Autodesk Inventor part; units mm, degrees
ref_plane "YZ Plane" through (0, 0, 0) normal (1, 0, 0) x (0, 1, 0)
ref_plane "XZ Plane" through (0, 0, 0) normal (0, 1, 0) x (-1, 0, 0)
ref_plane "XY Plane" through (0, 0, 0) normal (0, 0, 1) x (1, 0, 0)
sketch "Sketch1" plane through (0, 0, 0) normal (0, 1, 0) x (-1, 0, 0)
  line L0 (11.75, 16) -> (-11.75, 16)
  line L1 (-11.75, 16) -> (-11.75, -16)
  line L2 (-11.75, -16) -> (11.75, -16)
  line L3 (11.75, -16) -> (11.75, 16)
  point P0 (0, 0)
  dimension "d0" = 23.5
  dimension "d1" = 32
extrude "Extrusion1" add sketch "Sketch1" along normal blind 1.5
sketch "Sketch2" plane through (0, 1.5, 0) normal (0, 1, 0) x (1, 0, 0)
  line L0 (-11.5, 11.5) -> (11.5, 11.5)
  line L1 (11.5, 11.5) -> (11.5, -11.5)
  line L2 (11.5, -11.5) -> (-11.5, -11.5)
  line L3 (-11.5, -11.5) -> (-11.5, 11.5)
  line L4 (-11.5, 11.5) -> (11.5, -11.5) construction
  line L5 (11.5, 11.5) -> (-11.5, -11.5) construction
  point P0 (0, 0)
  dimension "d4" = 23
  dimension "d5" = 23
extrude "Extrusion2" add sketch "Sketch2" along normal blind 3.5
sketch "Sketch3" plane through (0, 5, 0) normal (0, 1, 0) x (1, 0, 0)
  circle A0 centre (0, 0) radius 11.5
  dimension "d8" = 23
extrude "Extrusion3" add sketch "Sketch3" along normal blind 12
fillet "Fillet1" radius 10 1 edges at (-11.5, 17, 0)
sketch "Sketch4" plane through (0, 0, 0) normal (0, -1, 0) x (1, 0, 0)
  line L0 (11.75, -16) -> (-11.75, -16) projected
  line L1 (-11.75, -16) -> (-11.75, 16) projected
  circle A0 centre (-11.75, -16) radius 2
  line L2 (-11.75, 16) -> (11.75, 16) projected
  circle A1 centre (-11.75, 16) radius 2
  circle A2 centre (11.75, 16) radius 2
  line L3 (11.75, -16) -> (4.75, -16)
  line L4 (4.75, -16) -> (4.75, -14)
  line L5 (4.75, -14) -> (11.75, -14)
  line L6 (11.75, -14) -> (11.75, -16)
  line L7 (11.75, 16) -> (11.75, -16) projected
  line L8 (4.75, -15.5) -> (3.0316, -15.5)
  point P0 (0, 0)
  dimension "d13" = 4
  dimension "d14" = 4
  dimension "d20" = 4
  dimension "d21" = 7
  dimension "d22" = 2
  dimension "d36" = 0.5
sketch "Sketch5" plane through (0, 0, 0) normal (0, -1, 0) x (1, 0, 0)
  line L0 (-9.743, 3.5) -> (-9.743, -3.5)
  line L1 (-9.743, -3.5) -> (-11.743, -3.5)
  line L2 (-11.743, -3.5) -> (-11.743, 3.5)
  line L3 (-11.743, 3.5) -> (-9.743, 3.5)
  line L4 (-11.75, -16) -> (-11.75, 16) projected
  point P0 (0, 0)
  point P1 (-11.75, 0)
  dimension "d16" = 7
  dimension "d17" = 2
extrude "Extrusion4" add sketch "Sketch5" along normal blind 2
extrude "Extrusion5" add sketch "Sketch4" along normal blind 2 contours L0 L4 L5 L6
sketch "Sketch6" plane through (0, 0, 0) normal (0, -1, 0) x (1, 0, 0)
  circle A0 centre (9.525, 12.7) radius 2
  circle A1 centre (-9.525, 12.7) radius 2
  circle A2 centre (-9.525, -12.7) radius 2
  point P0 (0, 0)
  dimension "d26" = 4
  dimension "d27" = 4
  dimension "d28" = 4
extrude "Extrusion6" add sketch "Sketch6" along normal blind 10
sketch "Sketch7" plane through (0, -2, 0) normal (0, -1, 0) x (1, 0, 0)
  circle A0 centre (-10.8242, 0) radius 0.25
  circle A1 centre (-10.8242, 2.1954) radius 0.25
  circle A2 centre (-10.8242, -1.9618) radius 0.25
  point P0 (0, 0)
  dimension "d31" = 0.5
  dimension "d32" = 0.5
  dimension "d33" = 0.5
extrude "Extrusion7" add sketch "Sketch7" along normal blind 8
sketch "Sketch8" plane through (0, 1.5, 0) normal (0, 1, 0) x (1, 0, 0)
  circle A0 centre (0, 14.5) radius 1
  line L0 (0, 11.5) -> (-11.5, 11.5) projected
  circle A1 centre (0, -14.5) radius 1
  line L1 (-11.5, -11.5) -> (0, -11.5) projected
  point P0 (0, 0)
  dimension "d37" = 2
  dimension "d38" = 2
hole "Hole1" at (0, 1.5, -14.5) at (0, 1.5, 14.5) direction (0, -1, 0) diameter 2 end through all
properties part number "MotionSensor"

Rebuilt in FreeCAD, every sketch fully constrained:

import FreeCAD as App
import Part
import Sketcher

V = App.Vector
Q = App.Units.Quantity


def edges_at(feature, points):
    """Names of the edges that pass closest to the given points."""
    edges = feature.Shape.Edges
    near = lambda p: min(range(len(edges)), key=lambda i: edges[i].distToShape(Part.Vertex(*p))[0])
    return sorted({f"Edge{near(p) + 1}" for p in points})


def add_polygon(sketch, points):
    """Adds a closed chain of lines whose ends are joined by coincident constraints."""
    first, n = sketch.GeometryCount, len(points)
    for a, b in zip(points, points[1:] + points[:1]):
        sketch.addGeometry(Part.LineSegment(App.Vector(*a, 0), App.Vector(*b, 0)), False)
    for i in range(n):
        sketch.addConstraint(Sketcher.Constraint("Coincident", first + i, 2, first + (i + 1) % n, 1))

doc = App.newDocument("Part")
body = doc.addObject("PartDesign::Body", "Body")

# Sketch on XZ plane
sketch1 = doc.addObject("Sketcher::SketchObject", "Sketch")
body.addObject(sketch1)
sketch1.AttachmentSupport = (doc.XZ_Plane, [""])
sketch1.MapMode = "FlatFace"
add_polygon(sketch1, [(-11.75, -16), (-11.75, 16), (11.75, 16), (11.75, -16)])  # lines 0-3
sketch1.addConstraint([
    Sketcher.Constraint("Vertical", 0),
    Sketcher.Constraint("Horizontal", 1),
    Sketcher.Constraint("Vertical", 2),
    Sketcher.Constraint("Horizontal", 3),
    Sketcher.Constraint("Symmetric", 0, 2, 2, 2, -1, 1),
    Sketcher.Constraint("DistanceY", 0, 1, 0, 2, Q("32 mm")),
    Sketcher.Constraint("DistanceX", 1, 1, 1, 2, Q("23.5 mm")),
])
pad1 = doc.addObject("PartDesign::Pad", "Pad")
body.addObject(pad1)
pad1.Profile = sketch1
pad1.Length = 1.5
pad1.Reversed = True

# Sketch on XZ plane
sketch2 = doc.addObject("Sketcher::SketchObject", "Sketch001")
body.addObject(sketch2)
sketch2.AttachmentSupport = (doc.XZ_Plane, [""])
sketch2.MapMode = "FlatFace"
sketch2.AttachmentOffset = App.Placement(V(0, 0, -1.5), App.Rotation())
add_polygon(sketch2, [(11.5, -11.5), (-11.5, -11.5), (-11.5, 11.5), (11.5, 11.5)])  # lines 0-3
sketch2.addConstraint([
    Sketcher.Constraint("Horizontal", 0),
    Sketcher.Constraint("Vertical", 1),
    Sketcher.Constraint("Horizontal", 2),
    Sketcher.Constraint("Vertical", 3),
    Sketcher.Constraint("Symmetric", 0, 2, 2, 2, -1, 1),
    Sketcher.Constraint("Equal", 2, 1),
    Sketcher.Constraint("DistanceX", 0, 2, 0, 1, Q("23 mm")),
])
pad2 = doc.addObject("PartDesign::Pad", "Pad001")
body.addObject(pad2)
pad2.Profile = sketch2
pad2.Length = 3.5
pad2.Reversed = True

# Sketch on XZ plane
sketch3 = doc.addObject("Sketcher::SketchObject", "Sketch002")
body.addObject(sketch3)
sketch3.AttachmentSupport = (doc.XZ_Plane, [""])
sketch3.MapMode = "FlatFace"
sketch3.AttachmentOffset = App.Placement(V(0, 0, -5), App.Rotation())
sketch3.addGeometry(Part.Circle(V(0, 0, 0), V(0, 0, 1), 11.5), False)
sketch3.addConstraint([
    Sketcher.Constraint("Coincident", 0, 3, -1, 1),
    Sketcher.Constraint("Diameter", 0, Q("23 mm")),
])
pad3 = doc.addObject("PartDesign::Pad", "Pad002")
body.addObject(pad3)
pad3.Profile = sketch3
pad3.Length = 12
pad3.Reversed = True
doc.recompute()

fillet = doc.addObject("PartDesign::Fillet", "Fillet")
body.addObject(fillet)
fillet.Base = (pad3, edges_at(pad3, [(-11.5, 17, 0)]))
fillet.Radius = 10

# Sketch on XZ plane
sketch4 = doc.addObject("Sketcher::SketchObject", "Sketch003")
body.addObject(sketch4)
sketch4.AttachmentSupport = (doc.XZ_Plane, [""])
sketch4.MapMode = "FlatFace"
add_polygon(sketch4, [(-9.743, -3.5), (-9.743, 3.5), (-11.743, 3.5), (-11.743, -3.5)])  # lines 0-3
sketch4.addConstraint([
    Sketcher.Constraint("Vertical", 0),
    Sketcher.Constraint("Horizontal", 1),
    Sketcher.Constraint("Vertical", 2),
    Sketcher.Constraint("Horizontal", 3),
    Sketcher.Constraint("DistanceX", 1, 2, 1, 1, Q("2 mm")),
    Sketcher.Constraint("DistanceY", 0, 1, 0, 2, Q("7 mm")),
    Sketcher.Constraint("DistanceY", -1, 1, 0, 2, Q("3.5 mm")),
    Sketcher.Constraint("DistanceX", 0, 2, -1, 1, Q("9.743 mm")),
])
pad4 = doc.addObject("PartDesign::Pad", "Pad003")
body.addObject(pad4)
pad4.Profile = sketch4
pad4.Length = 2

# Sketch on XZ plane
sketch5 = doc.addObject("Sketcher::SketchObject", "Sketch004")
body.addObject(sketch5)
sketch5.AttachmentSupport = (doc.XZ_Plane, [""])
sketch5.MapMode = "FlatFace"
add_polygon(sketch5, [(4.75, -16), (11.75, -16), (11.75, -14), (4.75, -14)])  # lines 0-3
sketch5.addConstraint([
    Sketcher.Constraint("Horizontal", 0),
    Sketcher.Constraint("Vertical", 1),
    Sketcher.Constraint("Horizontal", 2),
    Sketcher.Constraint("Vertical", 3),
    Sketcher.Constraint("DistanceX", 0, 1, 0, 2, Q("7 mm")),
    Sketcher.Constraint("DistanceY", 1, 1, 1, 2, Q("2 mm")),
    Sketcher.Constraint("DistanceY", 0, 2, -1, 1, Q("16 mm")),
    Sketcher.Constraint("DistanceX", -1, 1, 0, 2, Q("11.75 mm")),
])
pad5 = doc.addObject("PartDesign::Pad", "Pad004")
body.addObject(pad5)
pad5.Profile = sketch5
pad5.Length = 2

# Sketch on XZ plane
sketch6 = doc.addObject("Sketcher::SketchObject", "Sketch005")
body.addObject(sketch6)
sketch6.AttachmentSupport = (doc.XZ_Plane, [""])
sketch6.MapMode = "FlatFace"
sketch6.addGeometry([
    Part.Circle(V(9.525, 12.7, 0), V(0, 0, 1), 2),
    Part.Circle(V(-9.525, 12.7, 0), V(0, 0, 1), 2),
    Part.Circle(V(-9.525, -12.7, 0), V(0, 0, 1), 2),
], False)
sketch6.addConstraint([
    Sketcher.Constraint("Equal", 0, 1),
    Sketcher.Constraint("Equal", 1, 2),
    Sketcher.Constraint("Symmetric", 0, 3, 2, 3, -1, 1),
    Sketcher.Constraint("Symmetric", 0, 3, 1, 3, -2),
    Sketcher.Constraint("Diameter", 0, Q("4 mm")),
    Sketcher.Constraint("DistanceY", -1, 1, 0, 3, Q("12.7 mm")),
    Sketcher.Constraint("DistanceX", 1, 3, 0, 3, Q("19.05 mm")),
])
pad6 = doc.addObject("PartDesign::Pad", "Pad005")
body.addObject(pad6)
pad6.Profile = sketch6
pad6.Length = 10

# Sketch on XZ plane
sketch7 = doc.addObject("Sketcher::SketchObject", "Sketch006")
body.addObject(sketch7)
sketch7.AttachmentSupport = (doc.XZ_Plane, [""])
sketch7.MapMode = "FlatFace"
sketch7.AttachmentOffset = App.Placement(V(0, 0, 2), App.Rotation())
sketch7.addGeometry([
    Part.Circle(V(-10.8242, 0, 0), V(0, 0, 1), 0.25),
    Part.Circle(V(-10.8242, 2.1954, 0), V(0, 0, 1), 0.25),
    Part.Circle(V(-10.8242, -1.9618, 0), V(0, 0, 1), 0.25),
], False)
sketch7.addConstraint([
    Sketcher.Constraint("Equal", 0, 1),
    Sketcher.Constraint("Equal", 1, 2),
    Sketcher.Constraint("PointOnObject", 0, 3, -1),
    Sketcher.Constraint("Vertical", 0, 3, 1, 3),
    Sketcher.Constraint("Vertical", 1, 3, 2, 3),
    Sketcher.Constraint("Diameter", 0, Q("0.5 mm")),
    Sketcher.Constraint("DistanceX", 0, 3, -1, 1, Q("10.8242 mm")),
    Sketcher.Constraint("DistanceY", -1, 1, 1, 3, Q("2.1954 mm")),
    Sketcher.Constraint("DistanceY", 2, 3, -1, 1, Q("1.9618 mm")),
])
pad7 = doc.addObject("PartDesign::Pad", "Pad006")
body.addObject(pad7)
pad7.Profile = sketch7
pad7.Length = 8

# Sketch on XZ plane
sketch8 = doc.addObject("Sketcher::SketchObject", "Sketch007")
body.addObject(sketch8)
sketch8.AttachmentSupport = (doc.XZ_Plane, [""])
sketch8.MapMode = "FlatFace"
sketch8.AttachmentOffset = App.Placement(V(0, 0, -1.5), App.Rotation())
sketch8.addGeometry([
    Part.Circle(V(0, -14.5, 0), V(0, 0, 1), 1),
    Part.Circle(V(0, 14.5, 0), V(0, 0, 1), 1),
], False)
sketch8.addConstraint([
    Sketcher.Constraint("Equal", 0, 1),
    Sketcher.Constraint("Symmetric", 0, 3, 1, 3, -1, 1),
    Sketcher.Constraint("PointOnObject", 0, 3, -2),
    Sketcher.Constraint("Diameter", 0, Q("2 mm")),
    Sketcher.Constraint("DistanceY", 0, 3, 1, 3, Q("29 mm")),
])
doc.recompute()
hole = doc.addObject("PartDesign::Hole", "Hole")
body.addObject(hole)
hole.Profile = sketch8
hole.ThreadType = "None"
hole.Diameter = 2
hole.DepthType = "ThroughAll"
hole.Reversed = True

doc.recompute()
